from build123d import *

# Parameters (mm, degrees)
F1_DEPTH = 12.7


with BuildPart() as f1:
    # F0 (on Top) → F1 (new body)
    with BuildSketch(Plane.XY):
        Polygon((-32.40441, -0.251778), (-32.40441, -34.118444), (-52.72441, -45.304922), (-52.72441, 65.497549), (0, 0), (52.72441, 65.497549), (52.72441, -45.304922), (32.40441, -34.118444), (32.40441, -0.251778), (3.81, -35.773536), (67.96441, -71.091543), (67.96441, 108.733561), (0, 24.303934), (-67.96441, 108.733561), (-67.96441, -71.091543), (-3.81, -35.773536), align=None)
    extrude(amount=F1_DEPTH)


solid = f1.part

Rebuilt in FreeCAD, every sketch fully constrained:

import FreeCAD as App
import Part
import Sketcher

V = App.Vector
Q = App.Units.Quantity

doc = App.newDocument("Part")
params = doc.addObject("Spreadsheet::Sheet", "Params")
for row, (alias, value) in enumerate([
    ("pad1_length", "0.5 in"),
], start=1):
    params.set(f"A{row}", alias)
    params.set(f"B{row}", "=" + value)
    params.setAlias(f"B{row}", alias)

body = doc.addObject("PartDesign::Body", "Body")

# Sketch on XY plane
sketch1 = body.newObject("Sketcher::SketchObject", "Sketch")
sketch1.AttachmentSupport = (doc.getObject("XY_Plane"), [""])
sketch1.MapMode = "FlatFace"
sketch1.addGeometry(Part.LineSegment(V(-32, 0, 0), V(-32, -34, 0)), False)
sketch1.addGeometry(Part.LineSegment(V(-32, -34, 0), V(-53, -45, 0)), False)
sketch1.addGeometry(Part.LineSegment(V(-53, -45, 0), V(-53, 65, 0)), False)
sketch1.addGeometry(Part.LineSegment(V(-53, 65, 0), V(0, 0, 0)), False)
sketch1.addGeometry(Part.LineSegment(V(0, 0, 0), V(53, 65, 0)), False)
sketch1.addGeometry(Part.LineSegment(V(53, 65, 0), V(53, -45, 0)), False)
sketch1.addGeometry(Part.LineSegment(V(53, -45, 0), V(32, -34, 0)), False)
sketch1.addGeometry(Part.LineSegment(V(32, -34, 0), V(32, 0, 0)), False)
sketch1.addGeometry(Part.LineSegment(V(32, 0, 0), V(4, -36, 0)), False)
sketch1.addGeometry(Part.LineSegment(V(4, -36, 0), V(68, -71, 0)), False)
sketch1.addGeometry(Part.LineSegment(V(68, -71, 0), V(68, 109, 0)), False)
sketch1.addGeometry(Part.LineSegment(V(68, 109, 0), V(0, 24, 0)), False)
sketch1.addGeometry(Part.LineSegment(V(0, 24, 0), V(-68, 109, 0)), False)
sketch1.addGeometry(Part.LineSegment(V(-68, 109, 0), V(-68, -71, 0)), False)
sketch1.addGeometry(Part.LineSegment(V(-68, -71, 0), V(-4, -36, 0)), False)
sketch1.addGeometry(Part.LineSegment(V(-4, -36, 0), V(-32, 0, 0)), False)
sketch1.addConstraint(Sketcher.Constraint("Coincident", 0, 2, 1, 1))
sketch1.addConstraint(Sketcher.Constraint("Coincident", 1, 2, 2, 1))
sketch1.addConstraint(Sketcher.Constraint("Coincident", 2, 2, 3, 1))
sketch1.addConstraint(Sketcher.Constraint("Coincident", 3, 2, 4, 1))
sketch1.addConstraint(Sketcher.Constraint("Coincident", 4, 2, 5, 1))
sketch1.addConstraint(Sketcher.Constraint("Coincident", 5, 2, 6, 1))
sketch1.addConstraint(Sketcher.Constraint("Coincident", 6, 2, 7, 1))
sketch1.addConstraint(Sketcher.Constraint("Coincident", 7, 2, 8, 1))
sketch1.addConstraint(Sketcher.Constraint("Coincident", 8, 2, 9, 1))
sketch1.addConstraint(Sketcher.Constraint("Coincident", 9, 2, 10, 1))
sketch1.addConstraint(Sketcher.Constraint("Coincident", 10, 2, 11, 1))
sketch1.addConstraint(Sketcher.Constraint("Coincident", 11, 2, 12, 1))
sketch1.addConstraint(Sketcher.Constraint("Coincident", 12, 2, 13, 1))
sketch1.addConstraint(Sketcher.Constraint("Coincident", 13, 2, 14, 1))
sketch1.addConstraint(Sketcher.Constraint("Coincident", 14, 2, 15, 1))
sketch1.addConstraint(Sketcher.Constraint("Coincident", 15, 2, 0, 1))
sketch1.addConstraint(Sketcher.Constraint("Vertical", 0))
sketch1.addConstraint(Sketcher.Constraint("Vertical", 2))
sketch1.addConstraint(Sketcher.Constraint("Vertical", 5))
sketch1.addConstraint(Sketcher.Constraint("Vertical", 7))
sketch1.addConstraint(Sketcher.Constraint("Vertical", 10))
sketch1.addConstraint(Sketcher.Constraint("Vertical", 13))
sketch1.addConstraint(Sketcher.Constraint("Coincident", 3, 2, -1, 1))
sketch1.addConstraint(Sketcher.Constraint("Symmetric", 2, 2, 4, 2, -2))
sketch1.addConstraint(Sketcher.Constraint("Symmetric", 0, 2, 6, 2, -2))
sketch1.addConstraint(Sketcher.Constraint("Symmetric", 10, 2, 12, 2, -2))
sketch1.addConstraint(Sketcher.Constraint("Symmetric", 8, 2, 14, 2, -2))
sketch1.addConstraint(Sketcher.Constraint("PointOnObject", 11, 2, -2))
sketch1.addConstraint(Sketcher.Constraint("Parallel", 4, 8))
sketch1.addConstraint(Sketcher.Constraint("Parallel", 6, 9))
sketch1.addConstraint(Sketcher.Constraint("Parallel", 8, 11))
sketch1.addConstraint(Sketcher.Constraint("Parallel", 1, 14))
sketch1.addConstraint(Sketcher.Constraint("Parallel", 12, 15))
sketch1.addConstraint(Sketcher.Constraint("Horizontal", 1, 2, 5, 2))
sketch1.addConstraint(Sketcher.Constraint("DistanceX", 1, 2, 0, 2, Q("0.8 in")))
sketch1.addConstraint(Sketcher.Constraint("DistanceX", 5, 2, 9, 2, Q("0.6 in")))
sketch1.addConstraint(Sketcher.Constraint("DistanceX", 14, 2, 8, 2, Q("0.3 in")))
sketch1.addConstraint(Sketcher.Constraint("DistanceY", 2, 1, 2, 2, Q("110.802471 mm")))
sketch1.addConstraint(Sketcher.Constraint("DistanceY", 9, 2, 6, 2, Q("36.973099 mm")))
sketch1.addConstraint(Sketcher.Constraint("Distance", 8, Q("45.600829 mm")))
sketch1.addConstraint(Sketcher.Constraint("Distance", 9, Q("73.23353 mm")))
sketch1.addConstraint(Sketcher.Constraint("Distance", 11, Q("108.385991 mm")))
sketch1.addConstraint(Sketcher.Constraint("DistanceY", 10, 1, 10, 2, Q("179.825104 mm")))
pad1 = body.newObject("PartDesign::Pad", "Pad")
pad1.Profile = sketch1
pad1.setExpression("Length", "Params.pad1_length")

doc.recompute()
